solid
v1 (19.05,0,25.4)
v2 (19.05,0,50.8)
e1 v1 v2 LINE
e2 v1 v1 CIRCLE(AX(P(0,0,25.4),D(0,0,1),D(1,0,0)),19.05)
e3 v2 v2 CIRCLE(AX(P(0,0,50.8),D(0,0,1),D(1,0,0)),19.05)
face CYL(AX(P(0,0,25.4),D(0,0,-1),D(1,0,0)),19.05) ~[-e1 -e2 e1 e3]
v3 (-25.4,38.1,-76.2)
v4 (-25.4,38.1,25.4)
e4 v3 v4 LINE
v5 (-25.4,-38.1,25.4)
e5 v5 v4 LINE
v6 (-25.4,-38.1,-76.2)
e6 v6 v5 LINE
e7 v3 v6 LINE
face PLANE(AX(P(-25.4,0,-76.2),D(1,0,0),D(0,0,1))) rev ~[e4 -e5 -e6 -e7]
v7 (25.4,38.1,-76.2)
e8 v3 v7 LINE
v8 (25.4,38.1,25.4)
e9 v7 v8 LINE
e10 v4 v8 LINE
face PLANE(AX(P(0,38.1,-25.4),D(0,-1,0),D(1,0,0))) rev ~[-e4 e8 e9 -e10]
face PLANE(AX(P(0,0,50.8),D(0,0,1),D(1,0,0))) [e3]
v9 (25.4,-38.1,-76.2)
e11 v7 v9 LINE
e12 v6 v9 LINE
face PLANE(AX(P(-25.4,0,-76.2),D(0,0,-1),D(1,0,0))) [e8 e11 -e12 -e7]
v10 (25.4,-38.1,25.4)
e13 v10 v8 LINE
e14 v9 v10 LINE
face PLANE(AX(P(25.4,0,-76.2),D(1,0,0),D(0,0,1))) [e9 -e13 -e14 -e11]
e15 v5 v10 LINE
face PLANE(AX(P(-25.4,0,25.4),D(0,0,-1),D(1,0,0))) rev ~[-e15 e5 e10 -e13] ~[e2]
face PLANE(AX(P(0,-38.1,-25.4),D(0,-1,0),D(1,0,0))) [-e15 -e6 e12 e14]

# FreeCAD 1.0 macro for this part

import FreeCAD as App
import Part
import Sketcher
from FreeCAD import Vector
Q = App.Units.Quantity


def add_polygon(sketch, points):
    """Adds a closed chain of lines whose ends are joined by coincident constraints."""
    first, n = sketch.GeometryCount, len(points)
    for a, b in zip(points, points[1:] + points[:1]):
        sketch.addGeometry(Part.LineSegment(App.Vector(*a, 0), App.Vector(*b, 0)), False)
    for i in range(n):
        sketch.addConstraint(Sketcher.Constraint("Coincident", first + i, 2, first + (i + 1) % n, 1))

doc = App.newDocument("Part")
body = doc.addObject("PartDesign::Body", "Body")

# Sketch on XZ plane
sketch1 = body.newObject("Sketcher::SketchObject", "Sketch")
sketch1.AttachmentSupport = (doc.getObject("XZ_Plane"), [""])
sketch1.MapMode = "FlatFace"
add_polygon(sketch1, [(-25, 25), (-25, -76), (25, -76), (25, 25)])  # lines 0-3
sketch1.addConstraint(Sketcher.Constraint("Vertical", 0))
sketch1.addConstraint(Sketcher.Constraint("Horizontal", 1))
sketch1.addConstraint(Sketcher.Constraint("Vertical", 2))
sketch1.addConstraint(Sketcher.Constraint("Horizontal", 3))
sketch1.addConstraint(Sketcher.Constraint("DistanceX", 1, 1, 1, 2, Q("2 in")))
sketch1.addConstraint(Sketcher.Constraint("DistanceY", 0, 2, 0, 1, Q("4 in")))
sketch1.addConstraint(Sketcher.Constraint("DistanceX", 0, 2, -1, 1, Q("1 in")))
sketch1.addConstraint(Sketcher.Constraint("DistanceY", 0, 2, -1, 1, Q("3 in")))
pad1 = body.newObject("PartDesign::Pad", "Pad")
pad1.Profile = sketch1
pad1.Length = Q("3 in")
pad1.Midplane = True

# Sketch on XY plane
sketch2 = body.newObject("Sketcher::SketchObject", "Sketch001")
sketch2.AttachmentSupport = (doc.getObject("XY_Plane"), [""])
sketch2.MapMode = "FlatFace"
sketch2.AttachmentOffset = App.Placement(Vector(0, 0, 1 * 25.4), App.Rotation())
sketch2.addGeometry(Part.Circle(Vector(0, 0, 0), Vector(0, 0, 1), 19), False)
sketch2.addConstraint(Sketcher.Constraint("Coincident", 0, 3, -1, 1))
sketch2.addConstraint(Sketcher.Constraint("Diameter", 0, Q("1.5 in")))
pad2 = body.newObject("PartDesign::Pad", "Pad001")
pad2.Profile = sketch2
pad2.Length = Q("1 in")

doc.recompute()
